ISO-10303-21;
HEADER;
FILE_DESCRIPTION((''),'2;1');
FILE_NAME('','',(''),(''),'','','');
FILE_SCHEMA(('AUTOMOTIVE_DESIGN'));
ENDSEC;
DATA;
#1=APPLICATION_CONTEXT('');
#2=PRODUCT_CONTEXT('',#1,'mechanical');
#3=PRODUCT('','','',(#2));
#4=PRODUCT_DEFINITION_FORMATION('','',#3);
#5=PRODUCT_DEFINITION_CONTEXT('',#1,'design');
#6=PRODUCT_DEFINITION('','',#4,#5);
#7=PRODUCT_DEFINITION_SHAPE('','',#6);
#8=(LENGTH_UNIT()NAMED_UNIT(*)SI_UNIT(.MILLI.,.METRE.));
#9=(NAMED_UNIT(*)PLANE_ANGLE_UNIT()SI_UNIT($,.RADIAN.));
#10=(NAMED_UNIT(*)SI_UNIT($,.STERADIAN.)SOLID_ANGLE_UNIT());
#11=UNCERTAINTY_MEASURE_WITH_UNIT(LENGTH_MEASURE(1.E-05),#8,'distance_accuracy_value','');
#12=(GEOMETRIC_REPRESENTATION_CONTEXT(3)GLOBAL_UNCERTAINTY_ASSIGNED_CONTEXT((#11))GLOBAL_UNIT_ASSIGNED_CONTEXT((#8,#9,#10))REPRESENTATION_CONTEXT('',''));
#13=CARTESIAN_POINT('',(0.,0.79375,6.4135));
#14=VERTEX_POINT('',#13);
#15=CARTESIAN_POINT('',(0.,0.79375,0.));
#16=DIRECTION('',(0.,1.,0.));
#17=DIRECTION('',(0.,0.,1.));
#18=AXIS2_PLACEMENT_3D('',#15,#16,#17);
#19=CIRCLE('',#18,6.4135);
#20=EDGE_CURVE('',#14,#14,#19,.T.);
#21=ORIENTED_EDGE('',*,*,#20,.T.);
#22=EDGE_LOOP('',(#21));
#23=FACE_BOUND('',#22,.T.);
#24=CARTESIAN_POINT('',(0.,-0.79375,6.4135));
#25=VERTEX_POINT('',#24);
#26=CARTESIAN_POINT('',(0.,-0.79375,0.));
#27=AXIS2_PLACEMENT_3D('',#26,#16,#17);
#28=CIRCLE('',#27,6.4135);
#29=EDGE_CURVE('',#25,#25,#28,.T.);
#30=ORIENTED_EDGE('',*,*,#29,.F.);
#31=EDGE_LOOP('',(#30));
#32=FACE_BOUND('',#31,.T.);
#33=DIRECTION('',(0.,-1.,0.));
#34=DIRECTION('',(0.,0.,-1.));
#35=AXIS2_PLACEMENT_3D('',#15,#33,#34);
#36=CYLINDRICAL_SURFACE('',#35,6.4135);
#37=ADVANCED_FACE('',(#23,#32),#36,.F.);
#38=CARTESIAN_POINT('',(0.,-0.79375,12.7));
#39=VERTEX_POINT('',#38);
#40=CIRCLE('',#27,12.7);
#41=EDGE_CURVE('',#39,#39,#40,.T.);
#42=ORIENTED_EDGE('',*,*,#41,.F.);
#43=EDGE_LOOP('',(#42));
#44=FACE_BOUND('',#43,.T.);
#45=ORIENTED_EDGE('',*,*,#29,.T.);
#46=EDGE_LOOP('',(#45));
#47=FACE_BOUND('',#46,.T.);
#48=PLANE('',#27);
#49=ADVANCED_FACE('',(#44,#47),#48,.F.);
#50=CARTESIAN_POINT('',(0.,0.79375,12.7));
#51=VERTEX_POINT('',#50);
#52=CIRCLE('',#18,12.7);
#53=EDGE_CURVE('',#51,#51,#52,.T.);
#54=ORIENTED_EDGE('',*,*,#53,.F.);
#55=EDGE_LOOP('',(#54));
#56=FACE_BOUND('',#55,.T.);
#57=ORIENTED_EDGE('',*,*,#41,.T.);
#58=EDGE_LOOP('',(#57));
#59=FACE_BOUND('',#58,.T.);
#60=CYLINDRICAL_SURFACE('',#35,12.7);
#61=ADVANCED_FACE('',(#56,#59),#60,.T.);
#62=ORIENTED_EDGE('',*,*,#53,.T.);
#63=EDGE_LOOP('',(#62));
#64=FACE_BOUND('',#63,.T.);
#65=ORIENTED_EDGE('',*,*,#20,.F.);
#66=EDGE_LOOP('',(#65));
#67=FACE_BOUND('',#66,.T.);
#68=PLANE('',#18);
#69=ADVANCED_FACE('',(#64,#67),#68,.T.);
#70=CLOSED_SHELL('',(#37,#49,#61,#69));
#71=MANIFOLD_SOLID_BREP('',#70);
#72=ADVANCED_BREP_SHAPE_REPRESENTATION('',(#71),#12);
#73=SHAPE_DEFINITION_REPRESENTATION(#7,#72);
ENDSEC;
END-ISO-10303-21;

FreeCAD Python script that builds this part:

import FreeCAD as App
import Part
import Sketcher
from FreeCAD import Vector
Q = App.Units.Quantity

doc = App.newDocument("Part")
body = doc.addObject("PartDesign::Body", "Body")

# Sketch on XZ plane
sketch1 = body.newObject("Sketcher::SketchObject", "Sketch")
sketch1.AttachmentSupport = (doc.getObject("XZ_Plane"), [""])
sketch1.MapMode = "FlatFace"
sketch1.addGeometry([
    Part.Circle(Vector(0, 0, 0), Vector(0, 0, 1), 13),
    Part.Circle(Vector(0, 0, 0), Vector(0, 0, 1), 6),
], False)
sketch1.addConstraint([
    Sketcher.Constraint("Coincident", 0, 3, -1, 1),
    Sketcher.Constraint("Coincident", 1, 3, -1, 1),
    Sketcher.Constraint("Diameter", 0, Q("1 in")),
    Sketcher.Constraint("Diameter", 1, Q("0.505 in")),
])
pad1 = body.newObject("PartDesign::Pad", "Pad")
pad1.Profile = sketch1
pad1.Length = Q("0.0625 in")
pad1.Midplane = True

doc.recompute()
